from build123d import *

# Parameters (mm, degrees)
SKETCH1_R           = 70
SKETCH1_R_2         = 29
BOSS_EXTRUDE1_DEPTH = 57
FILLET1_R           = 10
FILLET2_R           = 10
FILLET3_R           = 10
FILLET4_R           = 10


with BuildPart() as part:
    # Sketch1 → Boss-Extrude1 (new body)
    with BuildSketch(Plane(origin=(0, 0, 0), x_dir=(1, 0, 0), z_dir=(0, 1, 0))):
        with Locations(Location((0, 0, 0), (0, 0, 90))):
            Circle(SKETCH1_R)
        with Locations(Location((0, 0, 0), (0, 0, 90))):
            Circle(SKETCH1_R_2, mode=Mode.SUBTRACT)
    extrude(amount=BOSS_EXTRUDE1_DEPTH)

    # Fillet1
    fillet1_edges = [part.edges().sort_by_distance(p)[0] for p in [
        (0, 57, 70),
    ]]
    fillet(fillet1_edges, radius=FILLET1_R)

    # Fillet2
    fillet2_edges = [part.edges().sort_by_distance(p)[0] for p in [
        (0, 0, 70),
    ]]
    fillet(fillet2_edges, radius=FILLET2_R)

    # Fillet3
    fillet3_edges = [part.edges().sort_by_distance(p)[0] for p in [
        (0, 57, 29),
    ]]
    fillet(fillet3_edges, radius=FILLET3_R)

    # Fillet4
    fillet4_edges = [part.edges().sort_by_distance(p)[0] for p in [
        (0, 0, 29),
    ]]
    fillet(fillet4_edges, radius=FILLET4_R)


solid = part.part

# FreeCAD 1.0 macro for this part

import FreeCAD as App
import Part
import Sketcher

V = App.Vector


def edges_at(feature, points):
    """Names of the edges that pass closest to the given points."""
    edges = feature.Shape.Edges
    near = lambda p: min(range(len(edges)), key=lambda i: edges[i].distToShape(Part.Vertex(*p))[0])
    return sorted({f"Edge{near(p) + 1}" for p in points})

doc = App.newDocument("Part")
body = doc.addObject("PartDesign::Body", "Body")

# Sketch on XZ plane
sketch1 = body.newObject("Sketcher::SketchObject", "Sketch")
sketch1.AttachmentSupport = (doc.getObject("XZ_Plane"), [""])
sketch1.MapMode = "FlatFace"
sketch1.addGeometry([
    Part.Circle(V(0, 0, 0), V(0, 0, 1), 70),
    Part.Circle(V(0, 0, 0), V(0, 0, 1), 29),
], False)
sketch1.addConstraint([
    Sketcher.Constraint("Coincident", 0, 3, -1, 1),
    Sketcher.Constraint("Coincident", 1, 3, -1, 1),
    Sketcher.Constraint("Diameter", 0, 140.0),
    Sketcher.Constraint("Diameter", 1, 58.0),
])
pad1 = body.newObject("PartDesign::Pad", "Pad")
pad1.Profile = sketch1
pad1.Length = 57
pad1.Reversed = True
doc.recompute()

fillet = body.newObject("PartDesign::Fillet", "Fillet")
fillet.Base = (pad1, edges_at(pad1, [(0, 57, 70)]))
fillet.Radius = 10
doc.recompute()

fillet2 = body.newObject("PartDesign::Fillet", "Fillet001")
fillet2.Base = (fillet, edges_at(fillet, [(0, 0, 70)]))
fillet2.Radius = 10
doc.recompute()

fillet3 = body.newObject("PartDesign::Fillet", "Fillet002")
fillet3.Base = (fillet2, edges_at(fillet2, [(0, 57, 29)]))
fillet3.Radius = 10
doc.recompute()

fillet4 = body.newObject("PartDesign::Fillet", "Fillet003")
fillet4.Base = (fillet3, edges_at(fillet3, [(0, 0, 29)]))
fillet4.Radius = 10

doc.recompute()
